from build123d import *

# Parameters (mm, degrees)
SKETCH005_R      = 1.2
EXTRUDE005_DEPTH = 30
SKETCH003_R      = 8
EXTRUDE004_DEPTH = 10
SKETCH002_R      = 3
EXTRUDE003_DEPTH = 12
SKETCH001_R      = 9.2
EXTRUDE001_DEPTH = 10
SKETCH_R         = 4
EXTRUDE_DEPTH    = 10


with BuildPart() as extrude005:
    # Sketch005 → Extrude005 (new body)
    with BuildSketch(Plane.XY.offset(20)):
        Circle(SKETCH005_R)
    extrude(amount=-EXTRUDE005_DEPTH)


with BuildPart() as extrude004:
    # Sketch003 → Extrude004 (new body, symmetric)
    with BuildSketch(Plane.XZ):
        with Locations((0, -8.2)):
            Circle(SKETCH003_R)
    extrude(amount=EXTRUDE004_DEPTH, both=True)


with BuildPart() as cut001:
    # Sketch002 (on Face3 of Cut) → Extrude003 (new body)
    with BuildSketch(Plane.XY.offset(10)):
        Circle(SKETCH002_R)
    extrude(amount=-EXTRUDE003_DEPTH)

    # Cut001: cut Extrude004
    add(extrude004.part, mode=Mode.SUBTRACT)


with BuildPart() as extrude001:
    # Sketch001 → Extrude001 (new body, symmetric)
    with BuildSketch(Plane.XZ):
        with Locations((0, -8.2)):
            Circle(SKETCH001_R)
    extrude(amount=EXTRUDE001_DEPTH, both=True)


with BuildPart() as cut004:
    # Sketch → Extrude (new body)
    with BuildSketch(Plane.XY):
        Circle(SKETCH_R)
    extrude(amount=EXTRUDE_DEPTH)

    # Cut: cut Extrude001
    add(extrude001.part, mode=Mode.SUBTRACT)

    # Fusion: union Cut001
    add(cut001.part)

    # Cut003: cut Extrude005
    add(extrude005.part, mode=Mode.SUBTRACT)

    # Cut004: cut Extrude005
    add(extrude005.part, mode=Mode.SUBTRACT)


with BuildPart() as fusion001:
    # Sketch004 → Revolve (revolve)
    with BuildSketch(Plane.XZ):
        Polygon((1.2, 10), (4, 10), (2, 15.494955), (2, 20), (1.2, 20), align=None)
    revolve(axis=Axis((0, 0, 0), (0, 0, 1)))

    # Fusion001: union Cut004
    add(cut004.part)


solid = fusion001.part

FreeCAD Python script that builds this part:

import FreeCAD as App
import Part
import Sketcher
from FreeCAD import Vector
Q = App.Units.Quantity


def add_polygon(sketch, points):
    """Adds a closed chain of lines whose ends are joined by coincident constraints."""
    first, n = sketch.GeometryCount, len(points)
    for a, b in zip(points, points[1:] + points[:1]):
        sketch.addGeometry(Part.LineSegment(App.Vector(*a, 0), App.Vector(*b, 0)), False)
    for i in range(n):
        sketch.addConstraint(Sketcher.Constraint("Coincident", first + i, 2, first + (i + 1) % n, 1))

doc = App.newDocument("Part")
body = doc.addObject("PartDesign::Body", "Body")

sketch1 = body.newObject("Sketcher::SketchObject", "Sketch")
sketch1.AttachmentSupport = (doc.getObject("XY_Plane"), [""])
sketch1.MapMode = "FlatFace"
sketch1.AttachmentOffset = App.Placement(Vector(0, 0, 20), App.Rotation())
sketch1.addGeometry(Part.Circle(Vector(0, 0, 0), Vector(0, 0, 1), 1.2), False)
sketch1.addConstraint([
    Sketcher.Constraint("Coincident", 0, 3, -1, 1),
    Sketcher.Constraint("Diameter", 0, 2.4),
])
pad1 = body.newObject("PartDesign::Pad", "Pad")
pad1.Profile = sketch1
pad1.Length = 30
pad1.Reversed = True
body2 = doc.addObject("PartDesign::Body", "Body001")

sketch2 = body2.newObject("Sketcher::SketchObject", "Sketch001")
sketch2.AttachmentSupport = (doc.getObject("XZ_Plane001"), [""])
sketch2.MapMode = "FlatFace"
sketch2.addGeometry(Part.Circle(Vector(0, -8, 0), Vector(0, 0, 1), 8), False)
sketch2.addConstraint([
    Sketcher.Constraint("PointOnObject", 0, 3, -2),
    Sketcher.Constraint("Diameter", 0, 16.0),
    Sketcher.Constraint("DistanceY", 0, 3, -1, 1, 8.2),
])
pad2 = body2.newObject("PartDesign::Pad", "Pad001")
pad2.Profile = sketch2
pad2.Length = 20
pad2.Midplane = True
body3 = doc.addObject("PartDesign::Body", "Body002")

sketch3 = body3.newObject("Sketcher::SketchObject", "Sketch002")
sketch3.AttachmentSupport = (doc.getObject("XY_Plane002"), [""])
sketch3.MapMode = "FlatFace"
sketch3.AttachmentOffset = App.Placement(Vector(0, 0, 10), App.Rotation())
sketch3.addGeometry(Part.Circle(Vector(0, 0, 0), Vector(0, 0, 1), 3), False)
sketch3.addConstraint([
    Sketcher.Constraint("Coincident", 0, 3, -1, 1),
    Sketcher.Constraint("Diameter", 0, 6.0),
])
pad3 = body3.newObject("PartDesign::Pad", "Pad002")
pad3.Profile = sketch3
pad3.Length = 12
pad3.Reversed = True
doc.recompute()

boolean = body3.newObject("PartDesign::Boolean", "Boolean")
boolean.Type = "Cut"
boolean.addObjects([body2])
body4 = doc.addObject("PartDesign::Body", "Body003")

sketch4 = body4.newObject("Sketcher::SketchObject", "Sketch003")
sketch4.AttachmentSupport = (doc.getObject("XZ_Plane003"), [""])
sketch4.MapMode = "FlatFace"
sketch4.addGeometry(Part.Circle(Vector(0, -8, 0), Vector(0, 0, 1), 9), False)
sketch4.addConstraint([
    Sketcher.Constraint("PointOnObject", 0, 3, -2),
    Sketcher.Constraint("Diameter", 0, 18.4),
    Sketcher.Constraint("DistanceY", 0, 3, -1, 1, 8.2),
])
pad4 = body4.newObject("PartDesign::Pad", "Pad003")
pad4.Profile = sketch4
pad4.Length = 20
pad4.Midplane = True
body5 = doc.addObject("PartDesign::Body", "Body004")

sketch5 = body5.newObject("Sketcher::SketchObject", "Sketch004")
sketch5.AttachmentSupport = (doc.getObject("XY_Plane004"), [""])
sketch5.MapMode = "FlatFace"
sketch5.addGeometry(Part.Circle(Vector(0, 0, 0), Vector(0, 0, 1), 4), False)
sketch5.addConstraint([
    Sketcher.Constraint("Coincident", 0, 3, -1, 1),
    Sketcher.Constraint("Diameter", 0, 8.0),
])
pad5 = body5.newObject("PartDesign::Pad", "Pad004")
pad5.Profile = sketch5
pad5.Length = 10
doc.recompute()

boolean2 = body5.newObject("PartDesign::Boolean", "Boolean001")
boolean2.Type = "Cut"
boolean2.addObjects([body4])
doc.recompute()

boolean3 = body5.newObject("PartDesign::Boolean", "Boolean002")
boolean3.Type = "Fuse"
boolean3.addObjects([body3])
doc.recompute()

body6 = doc.addObject("PartDesign::Body", "Body005")
body6.BaseFeature = body
boolean4 = body5.newObject("PartDesign::Boolean", "Boolean003")
boolean4.Type = "Cut"
boolean4.addObjects([body6])
doc.recompute()

boolean5 = body5.newObject("PartDesign::Boolean", "Boolean004")
boolean5.Type = "Cut"
boolean5.addObjects([body])
body7 = doc.addObject("PartDesign::Body", "Body006")

sketch6 = body7.newObject("Sketcher::SketchObject", "Sketch005")
sketch6.AttachmentSupport = (doc.getObject("XZ_Plane006"), [""])
sketch6.MapMode = "FlatFace"
add_polygon(sketch6, [(1.2, 10), (4, 10), (2, 15.5), (2, 20), (1.2, 20)])
sketch6.addConstraint([
    Sketcher.Constraint("Horizontal", 0),
    Sketcher.Constraint("Vertical", 2),
    Sketcher.Constraint("Horizontal", 3),
    Sketcher.Constraint("Vertical", 4),
    Sketcher.Constraint("DistanceY", 4, 2, 4, 1, 10.0),
    Sketcher.Constraint("Angle", 1, Q("109.999999 deg")),
    Sketcher.Constraint("DistanceX", 0, 1, 0, 2, 2.8),
    Sketcher.Constraint("DistanceX", 3, 2, 3, 1, 0.8),
    Sketcher.Constraint("DistanceX", -1, 1, 0, 2, 4.0),
    Sketcher.Constraint("DistanceY", -1, 1, 0, 2, 10.0),
])
revolution = body7.newObject("PartDesign::Revolution", "Revolution")
revolution.Profile = sketch6
revolution.ReferenceAxis = (sketch6, ["V_Axis"])
revolution.Angle = 360
doc.recompute()

boolean6 = body7.newObject("PartDesign::Boolean", "Boolean005")
boolean6.Type = "Fuse"
boolean6.addObjects([body5])

doc.recompute()
